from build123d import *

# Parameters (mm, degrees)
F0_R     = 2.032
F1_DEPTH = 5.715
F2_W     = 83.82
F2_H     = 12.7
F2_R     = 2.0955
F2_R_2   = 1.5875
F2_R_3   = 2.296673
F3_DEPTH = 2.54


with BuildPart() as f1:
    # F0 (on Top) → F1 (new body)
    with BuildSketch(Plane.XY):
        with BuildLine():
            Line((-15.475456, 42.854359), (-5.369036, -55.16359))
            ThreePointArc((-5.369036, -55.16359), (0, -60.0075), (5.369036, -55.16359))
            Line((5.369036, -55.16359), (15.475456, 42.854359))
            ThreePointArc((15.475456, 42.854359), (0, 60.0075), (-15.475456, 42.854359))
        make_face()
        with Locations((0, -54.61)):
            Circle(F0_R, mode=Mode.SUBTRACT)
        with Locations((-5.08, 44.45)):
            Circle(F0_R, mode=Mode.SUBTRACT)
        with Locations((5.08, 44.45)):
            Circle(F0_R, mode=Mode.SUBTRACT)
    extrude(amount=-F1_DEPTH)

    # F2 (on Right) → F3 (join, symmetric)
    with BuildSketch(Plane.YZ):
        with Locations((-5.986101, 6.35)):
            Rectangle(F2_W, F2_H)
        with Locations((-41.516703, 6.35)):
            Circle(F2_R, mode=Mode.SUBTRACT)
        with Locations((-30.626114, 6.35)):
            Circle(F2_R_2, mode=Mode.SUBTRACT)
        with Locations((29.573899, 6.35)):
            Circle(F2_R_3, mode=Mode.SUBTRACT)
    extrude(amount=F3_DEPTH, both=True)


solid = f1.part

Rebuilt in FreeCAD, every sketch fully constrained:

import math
import FreeCAD as App
import Part
import Sketcher
from FreeCAD import Vector
Q = App.Units.Quantity

doc = App.newDocument("Part")
params = doc.addObject("Spreadsheet::Sheet", "Params")
for row, (alias, value) in enumerate([
    ("sketch1_diameter", "0.16 in"),
    ("pad1_length", "0.225 in"),
    ("sketch2_diameter", "0.165 in"),
    ("sketch2_diameter2", "0.125 in"),
    ("sketch2_width", "3.3 in"),
    ("sketch2_height", "0.5 in"),
    ("pad2_length", "0.2 in"),
], start=1):
    params.set(f"A{row}", alias)
    params.set(f"B{row}", "=" + value)
    params.setAlias(f"B{row}", alias)

body = doc.addObject("PartDesign::Body", "Body")

# Sketch on XY plane
sketch1 = doc.addObject("Sketcher::SketchObject", "Sketch")
body.addObject(sketch1)
sketch1.AttachmentSupport = (doc.XY_Plane, [""])
sketch1.MapMode = "FlatFace"
sketch1.addGeometry([
    Part.LineSegment(Vector(-15.5, 42.9, 0), Vector(-5.4, -55.2, 0)),  # 0
    Part.ArcOfCircle(Part.Circle(Vector(0, -54.6, 0), Vector(0, 0, 1), 5.4), math.radians(-174), math.radians(-6)),  # 1
    Part.LineSegment(Vector(5.4, -55.2, 0), Vector(15.5, 42.9, 0)),  # 2
    Part.ArcOfCircle(Part.Circle(Vector(0, 44.4, 0), Vector(0, 0, 1), 15.6), math.radians(-6), math.radians(186)),  # 3
    Part.Circle(Vector(0, -54.6, 0), Vector(0, 0, 1), 2),  # 4
    Part.Circle(Vector(-5.1, 44.5, 0), Vector(0, 0, 1), 2),  # 5
    Part.Circle(Vector(5.1, 44.5, 0), Vector(0, 0, 1), 2),  # 6
], False)
sketch1.addConstraint([
    Sketcher.Constraint("Tangent", 0, 2, 1, 1),
    Sketcher.Constraint("Tangent", 1, 2, 2, 1),
    Sketcher.Constraint("Tangent", 2, 2, 3, 1),
    Sketcher.Constraint("Tangent", 3, 2, 0, 1),
    Sketcher.Constraint("Coincident", 4, 3, 1, 3),
    Sketcher.Constraint("Equal", 4, 5),
    Sketcher.Constraint("Equal", 5, 6),
    Sketcher.Constraint("Symmetric", 5, 3, 6, 3, -2),
    Sketcher.Constraint("Symmetric", 0, 2, 1, 2, -2),
    Sketcher.Constraint("Horizontal", 3, 3, 5, 3),
    Sketcher.Constraint("Diameter", 4, Q("0.16 in")),
    Sketcher.Constraint("DistanceX", 5, 3, -1, 1, Q("0.2 in")),
    Sketcher.Constraint("Radius", 1, Q("0.2125 in")),
    Sketcher.Constraint("Radius", 3, Q("0.6125 in")),
    Sketcher.Constraint("DistanceY", 1, 3, 3, 3, Q("3.9 in")),
    Sketcher.Constraint("DistanceY", 1, 3, -1, 1, Q("2.15 in")),
])
sketch1.setExpression("Constraints[10]", "Params.sketch1_diameter")
pad1 = doc.addObject("PartDesign::Pad", "Pad")
body.addObject(pad1)
pad1.Profile = sketch1
pad1.setExpression("Length", "Params.pad1_length")
pad1.Reversed = True

# Sketch on YZ plane
sketch2 = doc.addObject("Sketcher::SketchObject", "Sketch001")
body.addObject(sketch2)
sketch2.AttachmentSupport = (doc.YZ_Plane, [""])
sketch2.MapMode = "FlatFace"
sketch2.addGeometry([
    Part.LineSegment(Vector(-47.9, 12.7, 0), Vector(-47.9, 0, 0)),  # 0
    Part.LineSegment(Vector(-47.9, 0, 0), Vector(35.9, 0, 0)),  # 1
    Part.LineSegment(Vector(35.9, 0, 0), Vector(35.9, 12.7, 0)),  # 2
    Part.LineSegment(Vector(35.9, 12.7, 0), Vector(-47.9, 12.7, 0)),  # 3
    Part.Circle(Vector(-41.5, 6.3, 0), Vector(0, 0, 1), 2.1),  # 4
    Part.Circle(Vector(-30.6, 6.3, 0), Vector(0, 0, 1), 1.6),  # 5
    Part.Circle(Vector(29.6, 6.3, 0), Vector(0, 0, 1), 2.3),  # 6
], False)
sketch2.addConstraint([
    Sketcher.Constraint("Coincident", 0, 2, 1, 1),
    Sketcher.Constraint("Coincident", 1, 2, 2, 1),
    Sketcher.Constraint("Coincident", 2, 2, 3, 1),
    Sketcher.Constraint("Coincident", 3, 2, 0, 1),
    Sketcher.Constraint("Vertical", 0),
    Sketcher.Constraint("Horizontal", 1),
    Sketcher.Constraint("Vertical", 2),
    Sketcher.Constraint("Horizontal", 3),
    Sketcher.Constraint("PointOnObject", 0, 2, -1),
    Sketcher.Constraint("Horizontal", 4, 3, 5, 3),
    Sketcher.Constraint("Horizontal", 5, 3, 6, 3),
    Sketcher.Constraint("Diameter", 4, Q("0.165 in")),
    Sketcher.Constraint("Diameter", 5, Q("0.125 in")),
    Sketcher.Constraint("DistanceX", 1, 1, 1, 2, Q("3.3 in")),
    Sketcher.Constraint("DistanceY", 0, 2, 0, 1, Q("0.5 in")),
    Sketcher.Constraint("DistanceY", -1, 1, 4, 3, Q("0.25 in")),
    Sketcher.Constraint("DistanceX", 0, 2, 6, 3, Q("3.05 in")),
    Sketcher.Constraint("Diameter", 6, 4.593346),
    Sketcher.Constraint("DistanceX", -1, 1, 6, 3, 29.573899),
    Sketcher.Constraint("DistanceX", 0, 2, 4, 3, 6.379398),
    Sketcher.Constraint("DistanceX", 4, 3, 5, 3, 10.890589),
])
sketch2.setExpression("Constraints[11]", "Params.sketch2_diameter")
sketch2.setExpression("Constraints[12]", "Params.sketch2_diameter2")
sketch2.setExpression("Constraints[13]", "Params.sketch2_width")
sketch2.setExpression("Constraints[14]", "Params.sketch2_height")
pad2 = doc.addObject("PartDesign::Pad", "Pad001")
body.addObject(pad2)
pad2.Profile = sketch2
pad2.setExpression("Length", "Params.pad2_length")
pad2.Midplane = True

doc.recompute()
